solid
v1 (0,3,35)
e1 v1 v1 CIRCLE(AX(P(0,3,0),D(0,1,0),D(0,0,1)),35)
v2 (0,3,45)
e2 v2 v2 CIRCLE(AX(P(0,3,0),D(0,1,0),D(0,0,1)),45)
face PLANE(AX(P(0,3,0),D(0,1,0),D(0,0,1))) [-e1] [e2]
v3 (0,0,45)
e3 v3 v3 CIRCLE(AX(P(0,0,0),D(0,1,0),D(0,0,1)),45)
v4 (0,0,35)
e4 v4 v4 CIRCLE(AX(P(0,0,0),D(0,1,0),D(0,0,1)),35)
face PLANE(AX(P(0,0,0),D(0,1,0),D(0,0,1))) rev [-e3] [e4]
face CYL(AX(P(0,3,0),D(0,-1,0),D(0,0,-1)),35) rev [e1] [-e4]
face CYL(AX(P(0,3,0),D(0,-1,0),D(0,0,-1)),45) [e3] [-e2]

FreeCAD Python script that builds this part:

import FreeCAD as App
import Part
import Sketcher
from FreeCAD import Vector
Q = App.Units.Quantity

doc = App.newDocument("Part")
params = doc.addObject("Spreadsheet::Sheet", "Params")
for row, (alias, value) in enumerate([
    ("sketch1_diameter", "90 mm"),
    ("sketch1_diameter2", "70 mm"),
    ("pad1_length", "3 mm"),
], start=1):
    params.set(f"A{row}", alias)
    params.set(f"B{row}", "=" + value)
    params.setAlias(f"B{row}", alias)

body = doc.addObject("PartDesign::Body", "Body")

# Sketch on XZ plane
sketch1 = doc.addObject("Sketcher::SketchObject", "Sketch")
body.addObject(sketch1)
sketch1.AttachmentSupport = (doc.XZ_Plane, [""])
sketch1.MapMode = "FlatFace"
sketch1.addGeometry([
    Part.Circle(Vector(0, 0, 0), Vector(0, 0, 1), 45),
    Part.Circle(Vector(0, 0, 0), Vector(0, 0, 1), 35),
], False)
sketch1.addConstraint([
    Sketcher.Constraint("Coincident", 0, 3, -1, 1),
    Sketcher.Constraint("Coincident", 1, 3, -1, 1),
    Sketcher.Constraint("Diameter", 0, Q("90 mm")),
    Sketcher.Constraint("Diameter", 1, Q("70 mm")),
])
sketch1.setExpression("Constraints[2]", "Params.sketch1_diameter")
sketch1.setExpression("Constraints[3]", "Params.sketch1_diameter2")
pad1 = doc.addObject("PartDesign::Pad", "Pad")
body.addObject(pad1)
pad1.Profile = sketch1
pad1.setExpression("Length", "Params.pad1_length")
pad1.Reversed = True

doc.recompute()
